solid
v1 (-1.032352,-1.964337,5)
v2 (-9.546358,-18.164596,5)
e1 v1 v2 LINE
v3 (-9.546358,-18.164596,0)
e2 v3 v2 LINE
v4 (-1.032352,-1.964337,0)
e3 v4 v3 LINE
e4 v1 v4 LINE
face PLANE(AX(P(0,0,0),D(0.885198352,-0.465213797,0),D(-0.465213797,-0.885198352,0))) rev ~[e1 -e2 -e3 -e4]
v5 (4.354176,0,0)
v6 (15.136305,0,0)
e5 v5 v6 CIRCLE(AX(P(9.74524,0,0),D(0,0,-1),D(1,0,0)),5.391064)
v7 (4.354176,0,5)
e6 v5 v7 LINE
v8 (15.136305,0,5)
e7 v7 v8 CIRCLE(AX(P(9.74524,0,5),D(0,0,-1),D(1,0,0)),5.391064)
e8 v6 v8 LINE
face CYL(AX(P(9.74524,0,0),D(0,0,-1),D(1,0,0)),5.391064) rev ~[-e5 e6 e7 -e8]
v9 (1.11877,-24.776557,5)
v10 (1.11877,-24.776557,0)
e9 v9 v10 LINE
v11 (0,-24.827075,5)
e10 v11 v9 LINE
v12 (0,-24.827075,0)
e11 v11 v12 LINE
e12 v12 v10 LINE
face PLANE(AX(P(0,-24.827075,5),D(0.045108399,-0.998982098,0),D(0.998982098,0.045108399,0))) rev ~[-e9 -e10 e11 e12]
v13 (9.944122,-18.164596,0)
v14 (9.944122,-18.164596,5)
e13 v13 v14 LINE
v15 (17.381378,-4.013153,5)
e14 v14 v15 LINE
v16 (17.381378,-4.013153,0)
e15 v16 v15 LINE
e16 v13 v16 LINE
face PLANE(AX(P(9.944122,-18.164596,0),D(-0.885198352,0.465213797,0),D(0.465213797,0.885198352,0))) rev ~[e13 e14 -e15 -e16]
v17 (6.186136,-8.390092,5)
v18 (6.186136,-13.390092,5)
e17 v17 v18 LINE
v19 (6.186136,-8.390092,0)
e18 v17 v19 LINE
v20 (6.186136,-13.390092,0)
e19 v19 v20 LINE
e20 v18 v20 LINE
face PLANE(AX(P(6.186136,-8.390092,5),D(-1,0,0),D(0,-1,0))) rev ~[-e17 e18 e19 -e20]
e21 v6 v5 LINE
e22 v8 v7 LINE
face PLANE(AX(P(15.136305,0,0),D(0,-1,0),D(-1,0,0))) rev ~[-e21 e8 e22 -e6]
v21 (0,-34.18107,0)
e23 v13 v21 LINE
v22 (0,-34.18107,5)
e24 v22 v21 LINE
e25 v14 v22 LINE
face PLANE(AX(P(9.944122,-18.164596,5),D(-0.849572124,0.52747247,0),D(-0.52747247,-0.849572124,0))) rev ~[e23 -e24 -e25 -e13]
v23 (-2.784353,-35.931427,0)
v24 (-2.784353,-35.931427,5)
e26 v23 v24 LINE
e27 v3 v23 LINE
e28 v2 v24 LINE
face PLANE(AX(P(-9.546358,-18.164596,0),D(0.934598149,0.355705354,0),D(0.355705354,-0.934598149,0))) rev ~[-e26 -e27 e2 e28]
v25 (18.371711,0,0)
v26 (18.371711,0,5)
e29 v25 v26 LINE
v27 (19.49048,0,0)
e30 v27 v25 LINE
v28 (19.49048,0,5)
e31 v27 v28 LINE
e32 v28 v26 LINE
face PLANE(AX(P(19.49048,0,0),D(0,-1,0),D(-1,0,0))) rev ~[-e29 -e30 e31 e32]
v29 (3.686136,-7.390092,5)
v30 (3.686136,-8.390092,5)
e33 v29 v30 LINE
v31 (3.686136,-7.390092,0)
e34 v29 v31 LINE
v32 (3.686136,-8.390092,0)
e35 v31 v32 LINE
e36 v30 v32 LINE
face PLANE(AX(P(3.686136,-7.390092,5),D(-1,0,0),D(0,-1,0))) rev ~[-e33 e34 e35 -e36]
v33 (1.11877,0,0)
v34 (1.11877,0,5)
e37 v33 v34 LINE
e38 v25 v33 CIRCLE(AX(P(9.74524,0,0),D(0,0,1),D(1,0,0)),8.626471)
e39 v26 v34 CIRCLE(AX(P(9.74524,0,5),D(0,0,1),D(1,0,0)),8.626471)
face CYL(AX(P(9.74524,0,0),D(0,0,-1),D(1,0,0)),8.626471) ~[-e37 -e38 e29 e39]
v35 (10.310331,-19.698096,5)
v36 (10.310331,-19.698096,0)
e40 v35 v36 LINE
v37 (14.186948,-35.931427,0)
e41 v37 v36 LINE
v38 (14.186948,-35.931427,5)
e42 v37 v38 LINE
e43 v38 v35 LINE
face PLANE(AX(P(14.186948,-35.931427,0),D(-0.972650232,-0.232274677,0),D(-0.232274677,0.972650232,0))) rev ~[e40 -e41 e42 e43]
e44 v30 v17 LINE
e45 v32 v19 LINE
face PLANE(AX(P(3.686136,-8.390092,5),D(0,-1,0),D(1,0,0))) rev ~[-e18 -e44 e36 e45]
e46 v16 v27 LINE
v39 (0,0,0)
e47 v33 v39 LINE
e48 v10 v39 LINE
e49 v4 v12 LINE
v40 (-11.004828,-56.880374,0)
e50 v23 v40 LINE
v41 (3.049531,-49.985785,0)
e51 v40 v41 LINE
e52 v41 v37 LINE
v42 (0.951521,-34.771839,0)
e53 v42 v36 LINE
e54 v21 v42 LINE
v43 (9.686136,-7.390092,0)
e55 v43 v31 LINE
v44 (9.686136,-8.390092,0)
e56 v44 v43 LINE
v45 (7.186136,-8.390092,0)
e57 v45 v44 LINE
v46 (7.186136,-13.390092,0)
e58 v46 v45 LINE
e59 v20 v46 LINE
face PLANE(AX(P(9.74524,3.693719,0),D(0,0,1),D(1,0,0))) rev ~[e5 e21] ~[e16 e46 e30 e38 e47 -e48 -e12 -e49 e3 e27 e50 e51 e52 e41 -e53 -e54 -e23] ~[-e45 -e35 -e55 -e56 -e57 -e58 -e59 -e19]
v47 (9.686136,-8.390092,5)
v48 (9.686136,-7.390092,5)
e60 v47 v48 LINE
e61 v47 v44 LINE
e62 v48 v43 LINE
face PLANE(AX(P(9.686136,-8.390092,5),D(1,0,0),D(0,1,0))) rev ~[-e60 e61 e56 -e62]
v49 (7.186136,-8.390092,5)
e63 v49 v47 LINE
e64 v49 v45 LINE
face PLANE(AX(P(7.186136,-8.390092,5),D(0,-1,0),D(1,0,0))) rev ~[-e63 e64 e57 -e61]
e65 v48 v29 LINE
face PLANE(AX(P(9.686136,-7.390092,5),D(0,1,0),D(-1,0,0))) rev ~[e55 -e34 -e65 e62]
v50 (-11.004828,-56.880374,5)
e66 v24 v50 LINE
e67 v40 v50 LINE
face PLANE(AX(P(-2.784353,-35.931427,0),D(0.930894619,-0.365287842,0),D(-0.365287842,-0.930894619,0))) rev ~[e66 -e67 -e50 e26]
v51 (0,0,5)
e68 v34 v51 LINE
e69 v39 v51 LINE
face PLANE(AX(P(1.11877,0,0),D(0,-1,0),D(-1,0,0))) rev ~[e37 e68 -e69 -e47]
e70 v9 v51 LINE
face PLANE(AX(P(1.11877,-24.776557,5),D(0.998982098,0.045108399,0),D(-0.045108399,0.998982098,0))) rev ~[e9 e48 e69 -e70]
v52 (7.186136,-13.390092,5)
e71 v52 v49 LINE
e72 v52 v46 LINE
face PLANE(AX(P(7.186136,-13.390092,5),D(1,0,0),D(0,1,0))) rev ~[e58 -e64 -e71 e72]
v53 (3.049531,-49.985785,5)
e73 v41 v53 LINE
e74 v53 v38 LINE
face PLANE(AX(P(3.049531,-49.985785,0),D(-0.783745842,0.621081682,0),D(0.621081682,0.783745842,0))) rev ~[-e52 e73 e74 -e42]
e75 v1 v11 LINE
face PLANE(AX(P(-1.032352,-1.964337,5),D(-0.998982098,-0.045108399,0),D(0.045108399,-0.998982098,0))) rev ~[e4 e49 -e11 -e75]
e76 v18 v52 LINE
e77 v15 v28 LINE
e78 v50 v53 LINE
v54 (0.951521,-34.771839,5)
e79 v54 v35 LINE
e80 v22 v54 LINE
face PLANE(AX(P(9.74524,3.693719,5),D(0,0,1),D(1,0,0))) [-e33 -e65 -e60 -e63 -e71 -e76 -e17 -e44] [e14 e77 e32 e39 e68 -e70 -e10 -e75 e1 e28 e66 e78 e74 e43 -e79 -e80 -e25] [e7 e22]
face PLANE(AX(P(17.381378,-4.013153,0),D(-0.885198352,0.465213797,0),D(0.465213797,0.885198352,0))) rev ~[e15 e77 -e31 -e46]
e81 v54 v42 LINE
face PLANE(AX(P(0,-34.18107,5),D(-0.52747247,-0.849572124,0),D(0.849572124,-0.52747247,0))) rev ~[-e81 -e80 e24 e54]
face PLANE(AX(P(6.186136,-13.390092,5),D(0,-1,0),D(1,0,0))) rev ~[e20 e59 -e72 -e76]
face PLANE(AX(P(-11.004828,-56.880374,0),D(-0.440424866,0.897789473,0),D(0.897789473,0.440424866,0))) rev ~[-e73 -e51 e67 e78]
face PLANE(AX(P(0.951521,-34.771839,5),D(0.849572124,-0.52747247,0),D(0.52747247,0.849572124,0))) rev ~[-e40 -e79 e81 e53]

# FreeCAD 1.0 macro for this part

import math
import FreeCAD as App
import Part
import Sketcher
from FreeCAD import Vector


def add_polygon(sketch, points):
    """Adds a closed chain of lines whose ends are joined by coincident constraints."""
    first, n = sketch.GeometryCount, len(points)
    for a, b in zip(points, points[1:] + points[:1]):
        sketch.addGeometry(Part.LineSegment(App.Vector(*a, 0), App.Vector(*b, 0)), False)
    for i in range(n):
        sketch.addConstraint(Sketcher.Constraint("Coincident", first + i, 2, first + (i + 1) % n, 1))

doc = App.newDocument("Part")
body = doc.addObject("PartDesign::Body", "Body")

# Sketch on XY plane
sketch1 = doc.addObject("Sketcher::SketchObject", "Sketch")
body.addObject(sketch1)
sketch1.AttachmentSupport = (doc.XY_Plane, [""])
sketch1.MapMode = "FlatFace"
sketch1.addGeometry(Part.ArcOfCircle(Part.Circle(Vector(9.74524, 0, 0), Vector(0, 0, 1), 8.626471), math.radians(0), math.radians(180)), False)
sketch1.addGeometry(Part.LineSegment(Vector(1.11877, 0, 0), Vector(0, 0, 0)), False)
sketch1.addGeometry(Part.LineSegment(Vector(0, 0, 0), Vector(-9.546358, -18.164596, 0)), False)
sketch1.addGeometry(Part.LineSegment(Vector(-9.546358, -18.164596, 0), Vector(-2.784353, -35.931427, 0)), False)
sketch1.addGeometry(Part.LineSegment(Vector(-2.784353, -35.931427, 0), Vector(-11.004828, -56.880374, 0)), False)
sketch1.addGeometry(Part.LineSegment(Vector(-11.004828, -56.880374, 0), Vector(3.049531, -49.985785, 0)), False)
sketch1.addGeometry(Part.LineSegment(Vector(3.049531, -49.985785, 0), Vector(14.186948, -35.931427, 0)), False)
sketch1.addGeometry(Part.LineSegment(Vector(14.186948, -35.931427, 0), Vector(9.944122, -18.164596, 0)), False)
sketch1.addGeometry(Part.LineSegment(Vector(9.944122, -18.164596, 0), Vector(17.381378, -4.013153, 0)), False)
sketch1.addGeometry(Part.LineSegment(Vector(17.381378, -4.013153, 0), Vector(19.49048, 0, 0)), False)
sketch1.addGeometry(Part.LineSegment(Vector(19.49048, 0, 0), Vector(18.371711, 0, 0)), False)
sketch1.addGeometry(Part.ArcOfCircle(Part.Circle(Vector(9.74524, 0, 0), Vector(0, 0, 1), 5.391064), math.radians(0), math.radians(180)), False)
sketch1.addGeometry(Part.LineSegment(Vector(15.136305, 0, 0), Vector(4.354176, 0, 0)), False)
sketch1.addConstraint(Sketcher.Constraint("Coincident", 0, 2, 1, 1))
sketch1.addConstraint(Sketcher.Constraint("Coincident", 1, 2, 2, 1))
sketch1.addConstraint(Sketcher.Constraint("Coincident", 2, 2, 3, 1))
sketch1.addConstraint(Sketcher.Constraint("Coincident", 3, 2, 4, 1))
sketch1.addConstraint(Sketcher.Constraint("Coincident", 4, 2, 5, 1))
sketch1.addConstraint(Sketcher.Constraint("Coincident", 5, 2, 6, 1))
sketch1.addConstraint(Sketcher.Constraint("Coincident", 6, 2, 7, 1))
sketch1.addConstraint(Sketcher.Constraint("Coincident", 7, 2, 8, 1))
sketch1.addConstraint(Sketcher.Constraint("Coincident", 8, 2, 9, 1))
sketch1.addConstraint(Sketcher.Constraint("Coincident", 9, 2, 10, 1))
sketch1.addConstraint(Sketcher.Constraint("Coincident", 10, 2, 0, 1))
sketch1.addConstraint(Sketcher.Constraint("Coincident", 11, 1, 12, 1))
sketch1.addConstraint(Sketcher.Constraint("Coincident", 12, 2, 11, 2))
sketch1.addConstraint(Sketcher.Constraint("Horizontal", 1))
sketch1.addConstraint(Sketcher.Constraint("Horizontal", 10))
sketch1.addConstraint(Sketcher.Constraint("Horizontal", 12))
sketch1.addConstraint(Sketcher.Constraint("Coincident", 1, 2, -1, 1))
sketch1.addConstraint(Sketcher.Constraint("Coincident", 11, 3, 0, 3))
sketch1.addConstraint(Sketcher.Constraint("PointOnObject", 0, 3, -1))
sketch1.addConstraint(Sketcher.Constraint("PointOnObject", 9, 2, -1))
sketch1.addConstraint(Sketcher.Constraint("PointOnObject", 11, 1, -1))
sketch1.addConstraint(Sketcher.Constraint("Radius", 0, 8.626471))
sketch1.addConstraint(Sketcher.Constraint("Radius", 11, 5.391064))
sketch1.addConstraint(Sketcher.Constraint("Distance", 4, 22.504101))
sketch1.addConstraint(Sketcher.Constraint("DistanceX", 1, 2, 1, 1, 1.11877))
sketch1.addConstraint(Sketcher.Constraint("DistanceX", 10, 2, 10, 1, 1.11877))
sketch1.addConstraint(Sketcher.Constraint("DistanceX", 2, 2, 0, 3, 19.291598))
sketch1.addConstraint(Sketcher.Constraint("DistanceX", 3, 2, 6, 2, 16.971301))
sketch1.addConstraint(Sketcher.Constraint("Distance", 3, 19.010129))
sketch1.addConstraint(Sketcher.Constraint("Distance", 6, 17.93229))
sketch1.addConstraint(Sketcher.Constraint("Distance", 9, 4.53362))
sketch1.addConstraint(Sketcher.Constraint("DistanceX", -1, 1, 5, 2, 3.049531))
sketch1.addConstraint(Sketcher.Constraint("DistanceY", 3, 2, 2, 2, 17.766831))
sketch1.addConstraint(Sketcher.Constraint("DistanceX", 4, 2, 2, 2, 1.45847))
sketch1.addConstraint(Sketcher.Constraint("DistanceY", 5, 2, 3, 2, 14.054358))
sketch1.addConstraint(Sketcher.Constraint("DistanceY", 6, 2, 7, 2, 17.766831))
sketch1.addConstraint(Sketcher.Constraint("DistanceX", 2, 2, 7, 2, 19.49048))
sketch1.addConstraint(Sketcher.Constraint("DistanceX", 0, 2, 8, 2, 16.262608))
sketch1.addConstraint(Sketcher.Constraint("Distance", 2, 20.520368))
pad1 = doc.addObject("PartDesign::Pad", "Pad")
body.addObject(pad1)
pad1.Profile = sketch1
pad1.Length = 5

# Sketch on XY plane
sketch2 = doc.addObject("Sketcher::SketchObject", "Sketch001")
body.addObject(sketch2)
sketch2.AttachmentSupport = (doc.XY_Plane, [""])
sketch2.MapMode = "FlatFace"
sketch2.AttachmentOffset = App.Placement(Vector(0, 0, 5), App.Rotation())
add_polygon(sketch2, [(1.11877, -24.776557), (0, 0), (-1.032352, -1.964337), (0, -24.827075)])  # lines 0-3
add_polygon(sketch2, [(10.310331, -19.698096), (9.944122, -18.164596), (0, -34.18107), (0.951521, -34.771839)])  # lines 4-7
sketch2.addConstraint(Sketcher.Constraint("Coincident", 0, 2, -1, 1))
sketch2.addConstraint(Sketcher.Constraint("PointOnObject", 2, 2, -2))
sketch2.addConstraint(Sketcher.Constraint("PointOnObject", 5, 2, -2))
sketch2.addConstraint(Sketcher.Constraint("Parallel", 0, 2))
sketch2.addConstraint(Sketcher.Constraint("Perpendicular", 2, 3))
sketch2.addConstraint(Sketcher.Constraint("Perpendicular", 5, 6))
sketch2.addConstraint(Sketcher.Constraint("Perpendicular", 6, 7))
sketch2.addConstraint(Sketcher.Constraint("Distance", 6, 1.12))
sketch2.addConstraint(Sketcher.Constraint("Distance", 5, 18.852401))
sketch2.addConstraint(Sketcher.Constraint("DistanceX", 6, 2, 4, 2, 8.992602))
sketch2.addConstraint(Sketcher.Constraint("DistanceY", 6, 2, 1, 2, 32.807502))
sketch2.addConstraint(Sketcher.Constraint("DistanceY", 7, 2, 4, 2, 1.5335))
sketch2.addConstraint(Sketcher.Constraint("Distance", 3, 1.11991))
sketch2.addConstraint(Sketcher.Constraint("DistanceY", 5, 2, -1, 1, 34.18107))
sketch2.addConstraint(Sketcher.Constraint("DistanceY", 3, 2, 1, 2, 22.812221))
pocket1 = doc.addObject("PartDesign::Pocket", "Pocket")
body.addObject(pocket1)
pocket1.Profile = sketch2
pocket1.Length = 25

# Sketch on XY plane
sketch3 = doc.addObject("Sketcher::SketchObject", "Sketch002")
body.addObject(sketch3)
sketch3.AttachmentSupport = (doc.XY_Plane, [""])
sketch3.MapMode = "FlatFace"
sketch3.AttachmentOffset = App.Placement(Vector(0, 0, 5), App.Rotation())
add_polygon(sketch3, [(3.686136, -8.390092), (6.186136, -8.390092), (6.186136, -13.390092), (7.186136, -13.390092), (7.186136, -8.390092), (9.686136, -8.390092), (9.686136, -7.390092), (3.686136, -7.390092)])  # lines 0-7
sketch3.addConstraint(Sketcher.Constraint("Horizontal", 0))
sketch3.addConstraint(Sketcher.Constraint("Vertical", 1))
sketch3.addConstraint(Sketcher.Constraint("Horizontal", 2))
sketch3.addConstraint(Sketcher.Constraint("Vertical", 3))
sketch3.addConstraint(Sketcher.Constraint("Horizontal", 4))
sketch3.addConstraint(Sketcher.Constraint("Vertical", 5))
sketch3.addConstraint(Sketcher.Constraint("Horizontal", 6))
sketch3.addConstraint(Sketcher.Constraint("Vertical", 7))
sketch3.addConstraint(Sketcher.Constraint("Horizontal", 0, 2, 3, 2))
sketch3.addConstraint(Sketcher.Constraint("Equal", 0, 4))
sketch3.addConstraint(Sketcher.Constraint("Equal", 2, 5))
sketch3.addConstraint(Sketcher.Constraint("DistanceX", 2, 1, 2, 2, 1.0))
sketch3.addConstraint(Sketcher.Constraint("DistanceX", 6, 2, 6, 1, 6.0))
sketch3.addConstraint(Sketcher.Constraint("DistanceY", 1, 2, 1, 1, 5.0))
sketch3.addConstraint(Sketcher.Constraint("DistanceY", 0, 2, -1, 1, 8.390092))
sketch3.addConstraint(Sketcher.Constraint("DistanceX", -1, 1, 0, 2, 6.186136))
pocket2 = doc.addObject("PartDesign::Pocket", "Pocket001")
body.addObject(pocket2)
pocket2.Profile = sketch3
pocket2.Length = 25

doc.recompute()
